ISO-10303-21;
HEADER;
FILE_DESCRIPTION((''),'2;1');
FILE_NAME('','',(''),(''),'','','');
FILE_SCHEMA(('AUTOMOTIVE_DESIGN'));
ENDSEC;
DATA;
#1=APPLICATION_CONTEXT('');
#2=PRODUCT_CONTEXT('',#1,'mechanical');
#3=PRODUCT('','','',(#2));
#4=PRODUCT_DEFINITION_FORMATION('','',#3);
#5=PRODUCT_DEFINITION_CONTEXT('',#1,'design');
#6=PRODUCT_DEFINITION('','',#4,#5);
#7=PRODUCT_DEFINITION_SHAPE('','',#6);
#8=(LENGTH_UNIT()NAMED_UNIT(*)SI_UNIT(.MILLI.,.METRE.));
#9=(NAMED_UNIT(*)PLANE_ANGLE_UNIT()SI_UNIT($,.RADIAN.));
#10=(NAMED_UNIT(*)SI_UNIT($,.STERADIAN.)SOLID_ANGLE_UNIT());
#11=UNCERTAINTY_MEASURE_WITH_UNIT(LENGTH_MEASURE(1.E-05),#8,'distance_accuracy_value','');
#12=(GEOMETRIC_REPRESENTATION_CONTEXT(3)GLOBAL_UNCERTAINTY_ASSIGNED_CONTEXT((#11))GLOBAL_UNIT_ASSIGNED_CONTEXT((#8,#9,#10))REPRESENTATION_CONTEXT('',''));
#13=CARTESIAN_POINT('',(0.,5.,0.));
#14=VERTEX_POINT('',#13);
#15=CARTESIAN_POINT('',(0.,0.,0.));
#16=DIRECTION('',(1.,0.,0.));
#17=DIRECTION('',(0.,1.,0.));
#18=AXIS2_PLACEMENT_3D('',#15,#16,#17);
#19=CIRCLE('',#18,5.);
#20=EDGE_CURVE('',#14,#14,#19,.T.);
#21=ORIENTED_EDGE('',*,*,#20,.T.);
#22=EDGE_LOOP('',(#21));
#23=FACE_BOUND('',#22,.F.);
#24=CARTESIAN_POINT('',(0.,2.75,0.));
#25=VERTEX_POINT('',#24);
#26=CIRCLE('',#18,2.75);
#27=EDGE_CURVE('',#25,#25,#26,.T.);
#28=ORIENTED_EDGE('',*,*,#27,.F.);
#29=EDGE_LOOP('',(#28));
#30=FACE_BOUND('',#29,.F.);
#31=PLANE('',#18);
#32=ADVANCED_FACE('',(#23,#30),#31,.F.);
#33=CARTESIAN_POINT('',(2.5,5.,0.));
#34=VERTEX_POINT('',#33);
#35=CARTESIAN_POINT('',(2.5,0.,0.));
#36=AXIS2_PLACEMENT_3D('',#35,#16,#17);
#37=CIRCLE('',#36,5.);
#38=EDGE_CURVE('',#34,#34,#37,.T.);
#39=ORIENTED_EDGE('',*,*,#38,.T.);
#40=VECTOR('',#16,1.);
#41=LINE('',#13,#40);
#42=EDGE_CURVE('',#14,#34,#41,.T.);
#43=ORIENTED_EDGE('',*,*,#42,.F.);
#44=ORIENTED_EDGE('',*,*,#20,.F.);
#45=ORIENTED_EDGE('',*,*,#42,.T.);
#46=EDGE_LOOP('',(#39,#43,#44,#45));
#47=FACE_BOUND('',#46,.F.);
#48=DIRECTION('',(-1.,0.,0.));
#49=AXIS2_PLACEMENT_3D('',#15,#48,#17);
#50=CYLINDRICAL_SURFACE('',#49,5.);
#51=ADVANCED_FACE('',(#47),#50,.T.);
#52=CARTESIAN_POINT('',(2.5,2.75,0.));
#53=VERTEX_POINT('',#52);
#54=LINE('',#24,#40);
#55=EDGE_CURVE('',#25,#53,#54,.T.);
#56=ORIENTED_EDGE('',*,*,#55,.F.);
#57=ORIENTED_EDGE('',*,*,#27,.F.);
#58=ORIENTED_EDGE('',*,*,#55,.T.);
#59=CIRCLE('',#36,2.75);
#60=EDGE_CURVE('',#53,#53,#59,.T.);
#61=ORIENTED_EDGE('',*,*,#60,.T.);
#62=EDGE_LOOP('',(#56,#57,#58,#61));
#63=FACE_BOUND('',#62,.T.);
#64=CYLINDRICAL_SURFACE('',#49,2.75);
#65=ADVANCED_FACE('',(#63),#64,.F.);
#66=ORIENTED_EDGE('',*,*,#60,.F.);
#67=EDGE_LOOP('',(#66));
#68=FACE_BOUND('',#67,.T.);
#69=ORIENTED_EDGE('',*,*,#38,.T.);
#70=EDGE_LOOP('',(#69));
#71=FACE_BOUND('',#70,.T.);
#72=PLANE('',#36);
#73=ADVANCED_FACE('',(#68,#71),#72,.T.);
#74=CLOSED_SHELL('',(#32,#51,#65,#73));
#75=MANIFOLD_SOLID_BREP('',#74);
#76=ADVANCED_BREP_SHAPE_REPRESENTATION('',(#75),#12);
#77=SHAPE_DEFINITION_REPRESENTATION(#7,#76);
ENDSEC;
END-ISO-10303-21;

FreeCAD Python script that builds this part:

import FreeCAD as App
import Part
import Sketcher

V = App.Vector
Q = App.Units.Quantity

doc = App.newDocument("Part")
body = doc.addObject("PartDesign::Body", "Body")

sketch1 = body.newObject("Sketcher::SketchObject", "Sketch")
sketch1.AttachmentSupport = (doc.getObject("YZ_Plane"), [""])
sketch1.MapMode = "FlatFace"
sketch1.addGeometry([
    Part.Circle(V(0, 0, 0), V(0, 0, 1), 5),
    Part.Circle(V(0, 0, 0), V(0, 0, 1), 2.8),
], False)
sketch1.addConstraint([
    Sketcher.Constraint("Coincident", 0, 3, -1, 1),
    Sketcher.Constraint("Coincident", 1, 3, -1, 1),
    Sketcher.Constraint("Diameter", 0, Q("10 mm")),
    Sketcher.Constraint("Diameter", 1, Q("5.5 mm")),
])
pad1 = body.newObject("PartDesign::Pad", "Pad")
pad1.Profile = sketch1
pad1.Length = 2.5

doc.recompute()
